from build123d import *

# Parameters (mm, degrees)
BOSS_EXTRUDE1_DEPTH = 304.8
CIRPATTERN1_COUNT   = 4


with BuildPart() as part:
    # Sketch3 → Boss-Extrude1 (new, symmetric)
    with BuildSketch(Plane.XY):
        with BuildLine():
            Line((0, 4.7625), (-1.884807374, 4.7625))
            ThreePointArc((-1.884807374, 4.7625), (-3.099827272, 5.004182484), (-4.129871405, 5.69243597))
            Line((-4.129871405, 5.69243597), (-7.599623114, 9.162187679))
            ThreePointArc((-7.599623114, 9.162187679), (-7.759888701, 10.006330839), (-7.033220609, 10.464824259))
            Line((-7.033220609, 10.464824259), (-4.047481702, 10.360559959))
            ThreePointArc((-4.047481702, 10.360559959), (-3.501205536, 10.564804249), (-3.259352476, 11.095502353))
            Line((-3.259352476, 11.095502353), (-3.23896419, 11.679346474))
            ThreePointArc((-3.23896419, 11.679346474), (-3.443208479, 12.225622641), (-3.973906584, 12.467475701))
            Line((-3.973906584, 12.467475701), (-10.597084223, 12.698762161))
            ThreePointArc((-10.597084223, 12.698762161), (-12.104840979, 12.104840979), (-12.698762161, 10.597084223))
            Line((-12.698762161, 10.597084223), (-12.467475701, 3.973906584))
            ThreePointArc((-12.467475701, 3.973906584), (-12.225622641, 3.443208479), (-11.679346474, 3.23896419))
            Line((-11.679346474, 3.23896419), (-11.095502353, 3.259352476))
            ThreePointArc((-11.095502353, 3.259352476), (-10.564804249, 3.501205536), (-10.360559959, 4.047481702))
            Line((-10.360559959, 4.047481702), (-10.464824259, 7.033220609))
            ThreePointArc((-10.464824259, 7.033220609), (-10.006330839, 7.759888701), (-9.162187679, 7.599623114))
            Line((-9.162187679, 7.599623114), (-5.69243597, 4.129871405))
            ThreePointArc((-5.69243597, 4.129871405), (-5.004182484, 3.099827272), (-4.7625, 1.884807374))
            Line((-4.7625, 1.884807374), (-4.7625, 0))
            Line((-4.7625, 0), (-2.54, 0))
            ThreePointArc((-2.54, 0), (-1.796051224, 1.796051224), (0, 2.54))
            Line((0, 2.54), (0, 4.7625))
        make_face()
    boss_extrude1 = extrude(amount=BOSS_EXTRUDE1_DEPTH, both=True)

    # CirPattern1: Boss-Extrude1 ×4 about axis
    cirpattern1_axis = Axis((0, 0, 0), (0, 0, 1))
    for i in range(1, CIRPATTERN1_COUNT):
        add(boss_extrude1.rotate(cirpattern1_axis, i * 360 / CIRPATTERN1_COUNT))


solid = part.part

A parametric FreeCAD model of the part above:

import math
import FreeCAD as App
import Part
import Sketcher
Q = App.Units.Quantity

doc = App.newDocument("Part")
body = doc.addObject("PartDesign::Body", "Body")

# Sketch on XY plane
sketch1 = body.newObject("Sketcher::SketchObject", "Sketch")
sketch1.AttachmentSupport = (doc.getObject("XY_Plane"), [""])
sketch1.MapMode = "FlatFace"
sketch1.addGeometry(Part.LineSegment(App.Vector(0, 4.7625, 0), App.Vector(-1.884807, 4.7625, 0)), False)
sketch1.addGeometry(Part.ArcOfCircle(Part.Circle(App.Vector(-1.884807, 7.9375, 0), App.Vector(0, 0, 1), 3.175), math.radians(-135), math.radians(-90)), False)
sketch1.addGeometry(Part.LineSegment(App.Vector(-4.129871, 5.692436, 0), App.Vector(-7.599623, 9.162188, 0)), False)
sketch1.addGeometry(Part.ArcOfCircle(Part.Circle(App.Vector(-7.059861, 9.70195, 0), App.Vector(0, 0, 1), 0.763339), math.radians(88), math.radians(225)), False)
sketch1.addGeometry(Part.LineSegment(App.Vector(-7.033221, 10.464824, 0), App.Vector(-4.047482, 10.36056, 0)), False)
sketch1.addGeometry(Part.ArcOfCircle(Part.Circle(App.Vector(-4.020888, 11.122096, 0), App.Vector(0, 0, 1), 0.762), math.radians(-92), math.radians(-2)), False)
sketch1.addGeometry(Part.LineSegment(App.Vector(-3.259352, 11.095502, 0), App.Vector(-3.238964, 11.679346, 0)), False)
sketch1.addGeometry(Part.ArcOfCircle(Part.Circle(App.Vector(-4.0005, 11.70594, 0), App.Vector(0, 0, 1), 0.762), math.radians(-2), math.radians(88)), False)
sketch1.addGeometry(Part.LineSegment(App.Vector(-3.973907, 12.467476, 0), App.Vector(-10.597084, 12.698762, 0)), False)
sketch1.addGeometry(Part.ArcOfCircle(Part.Circle(App.Vector(-10.668, 10.668, 0), App.Vector(0, 0, 1), 2.032), math.radians(88), math.radians(182)), False)
sketch1.addGeometry(Part.LineSegment(App.Vector(-12.698762, 10.597084, 0), App.Vector(-12.467476, 3.973907, 0)), False)
sketch1.addGeometry(Part.ArcOfCircle(Part.Circle(App.Vector(-11.70594, 4.0005, 0), App.Vector(0, 0, 1), 0.762), math.radians(-178), math.radians(-88)), False)
sketch1.addGeometry(Part.LineSegment(App.Vector(-11.679346, 3.238964, 0), App.Vector(-11.095502, 3.259352, 0)), False)
sketch1.addGeometry(Part.ArcOfCircle(Part.Circle(App.Vector(-11.122096, 4.020888, 0), App.Vector(0, 0, 1), 0.762), math.radians(-88), math.radians(2)), False)
sketch1.addGeometry(Part.LineSegment(App.Vector(-10.36056, 4.047482, 0), App.Vector(-10.464824, 7.033221, 0)), False)
sketch1.addGeometry(Part.ArcOfCircle(Part.Circle(App.Vector(-9.70195, 7.059861, 0), App.Vector(0, 0, 1), 0.763339), math.radians(45), math.radians(182)), False)
sketch1.addGeometry(Part.LineSegment(App.Vector(-9.162188, 7.599623, 0), App.Vector(-5.692436, 4.129871, 0)), False)
sketch1.addGeometry(Part.ArcOfCircle(Part.Circle(App.Vector(-7.9375, 1.884807, 0), App.Vector(0, 0, 1), 3.175), math.radians(0), math.radians(45)), False)
sketch1.addGeometry(Part.LineSegment(App.Vector(-4.7625, 1.884807, 0), App.Vector(-4.7625, 0, 0)), False)
sketch1.addGeometry(Part.LineSegment(App.Vector(-4.7625, 0, 0), App.Vector(-2.54, 0, 0)), False)
sketch1.addGeometry(Part.ArcOfCircle(Part.Circle(App.Vector(0, 0, 0), App.Vector(0, 0, 1), 2.54), math.radians(90), math.radians(180)), False)
sketch1.addGeometry(Part.LineSegment(App.Vector(0, 2.54, 0), App.Vector(0, 4.7625, 0)), False)
sketch1.addConstraint(Sketcher.Constraint("Tangent", 0, 2, 1, 2))
sketch1.addConstraint(Sketcher.Constraint("Tangent", 1, 1, 2, 1))
sketch1.addConstraint(Sketcher.Constraint("Tangent", 2, 2, 3, 2))
sketch1.addConstraint(Sketcher.Constraint("Tangent", 3, 1, 4, 1))
sketch1.addConstraint(Sketcher.Constraint("Tangent", 4, 2, 5, 1))
sketch1.addConstraint(Sketcher.Constraint("Tangent", 5, 2, 6, 1))
sketch1.addConstraint(Sketcher.Constraint("Tangent", 6, 2, 7, 1))
sketch1.addConstraint(Sketcher.Constraint("Tangent", 7, 2, 8, 1))
sketch1.addConstraint(Sketcher.Constraint("Tangent", 8, 2, 9, 1))
sketch1.addConstraint(Sketcher.Constraint("Tangent", 9, 2, 10, 1))
sketch1.addConstraint(Sketcher.Constraint("Tangent", 10, 2, 11, 1))
sketch1.addConstraint(Sketcher.Constraint("Tangent", 11, 2, 12, 1))
sketch1.addConstraint(Sketcher.Constraint("Tangent", 12, 2, 13, 1))
sketch1.addConstraint(Sketcher.Constraint("Tangent", 13, 2, 14, 1))
sketch1.addConstraint(Sketcher.Constraint("Tangent", 14, 2, 15, 2))
sketch1.addConstraint(Sketcher.Constraint("Tangent", 15, 1, 16, 1))
sketch1.addConstraint(Sketcher.Constraint("Tangent", 16, 2, 17, 2))
sketch1.addConstraint(Sketcher.Constraint("Tangent", 17, 1, 18, 1))
sketch1.addConstraint(Sketcher.Constraint("Coincident", 18, 2, 19, 1))
sketch1.addConstraint(Sketcher.Constraint("Coincident", 19, 2, 20, 2))
sketch1.addConstraint(Sketcher.Constraint("Coincident", 20, 1, 21, 1))
sketch1.addConstraint(Sketcher.Constraint("Coincident", 21, 2, 0, 1))
sketch1.addConstraint(Sketcher.Constraint("Horizontal", 0))
sketch1.addConstraint(Sketcher.Constraint("Vertical", 18))
sketch1.addConstraint(Sketcher.Constraint("Horizontal", 19))
sketch1.addConstraint(Sketcher.Constraint("Vertical", 21))
sketch1.addConstraint(Sketcher.Constraint("Coincident", 20, 3, -1, 1))
sketch1.addConstraint(Sketcher.Constraint("Equal", 5, 7))
sketch1.addConstraint(Sketcher.Constraint("Equal", 7, 11))
sketch1.addConstraint(Sketcher.Constraint("Equal", 11, 13))
sketch1.addConstraint(Sketcher.Constraint("Equal", 3, 15))
sketch1.addConstraint(Sketcher.Constraint("Equal", 1, 17))
sketch1.addConstraint(Sketcher.Constraint("PointOnObject", 18, 2, -1))
sketch1.addConstraint(Sketcher.Constraint("PointOnObject", 20, 1, -2))
sketch1.addConstraint(Sketcher.Constraint("Perpendicular", 4, 6))
sketch1.addConstraint(Sketcher.Constraint("Perpendicular", 6, 8))
sketch1.addConstraint(Sketcher.Constraint("Perpendicular", 10, 12))
sketch1.addConstraint(Sketcher.Constraint("Perpendicular", 12, 14))
sketch1.addConstraint(Sketcher.Constraint("Parallel", 2, 16))
sketch1.addConstraint(Sketcher.Constraint("Equal", 0, 18))
sketch1.addConstraint(Sketcher.Constraint("Equal", 19, 21))
sketch1.addConstraint(Sketcher.Constraint("Equal", 8, 10))
sketch1.addConstraint(Sketcher.Constraint("Equal", 6, 12))
sketch1.addConstraint(Sketcher.Constraint("Equal", 4, 14))
sketch1.addConstraint(Sketcher.Constraint("Equal", 2, 16))
sketch1.addConstraint(Sketcher.Constraint("Radius", 20, Q("0.1 in")))
sketch1.addConstraint(Sketcher.Constraint("Radius", 5, Q("0.03 in")))
sketch1.addConstraint(Sketcher.Constraint("Radius", 9, Q("0.08 in")))
sketch1.addConstraint(Sketcher.Constraint("Angle", 2, Q("135 deg")))
sketch1.addConstraint(Sketcher.Constraint("Angle", 4, Q("-2 deg")))
sketch1.addConstraint(Sketcher.Constraint("Radius", 1, Q("0.125 in")))
sketch1.addConstraint(Sketcher.Constraint("DistanceX", 9, 3, -1, 1, Q("0.42 in")))
sketch1.addConstraint(Sketcher.Constraint("Distance", 6, Q("0.023 in")))
sketch1.addConstraint(Sketcher.Constraint("DistanceX", 19, 1, 19, 2, Q("0.0875 in")))
sketch1.addConstraint(Sketcher.Constraint("Radius", 3, 0.763339))
sketch1.addConstraint(Sketcher.Constraint("DistanceY", 11, 3, 1, 3, Q("0.155 in")))
sketch1.addConstraint(Sketcher.Constraint("DistanceY", 15, 3, 8, 2, 5.638901))
pad1 = body.newObject("PartDesign::Pad", "Pad")
pad1.Profile = sketch1
pad1.Length = Q("24 in")
pad1.Midplane = True
doc.recompute()

polarpattern = body.newObject("PartDesign::PolarPattern", "PolarPattern")
polarpattern.Originals = [pad1]
polarpattern.Axis = (doc.getObject("Z_Axis"), [""])
polarpattern.Angle = 360
polarpattern.Occurrences = 4
body.Tip = polarpattern

doc.recompute()
